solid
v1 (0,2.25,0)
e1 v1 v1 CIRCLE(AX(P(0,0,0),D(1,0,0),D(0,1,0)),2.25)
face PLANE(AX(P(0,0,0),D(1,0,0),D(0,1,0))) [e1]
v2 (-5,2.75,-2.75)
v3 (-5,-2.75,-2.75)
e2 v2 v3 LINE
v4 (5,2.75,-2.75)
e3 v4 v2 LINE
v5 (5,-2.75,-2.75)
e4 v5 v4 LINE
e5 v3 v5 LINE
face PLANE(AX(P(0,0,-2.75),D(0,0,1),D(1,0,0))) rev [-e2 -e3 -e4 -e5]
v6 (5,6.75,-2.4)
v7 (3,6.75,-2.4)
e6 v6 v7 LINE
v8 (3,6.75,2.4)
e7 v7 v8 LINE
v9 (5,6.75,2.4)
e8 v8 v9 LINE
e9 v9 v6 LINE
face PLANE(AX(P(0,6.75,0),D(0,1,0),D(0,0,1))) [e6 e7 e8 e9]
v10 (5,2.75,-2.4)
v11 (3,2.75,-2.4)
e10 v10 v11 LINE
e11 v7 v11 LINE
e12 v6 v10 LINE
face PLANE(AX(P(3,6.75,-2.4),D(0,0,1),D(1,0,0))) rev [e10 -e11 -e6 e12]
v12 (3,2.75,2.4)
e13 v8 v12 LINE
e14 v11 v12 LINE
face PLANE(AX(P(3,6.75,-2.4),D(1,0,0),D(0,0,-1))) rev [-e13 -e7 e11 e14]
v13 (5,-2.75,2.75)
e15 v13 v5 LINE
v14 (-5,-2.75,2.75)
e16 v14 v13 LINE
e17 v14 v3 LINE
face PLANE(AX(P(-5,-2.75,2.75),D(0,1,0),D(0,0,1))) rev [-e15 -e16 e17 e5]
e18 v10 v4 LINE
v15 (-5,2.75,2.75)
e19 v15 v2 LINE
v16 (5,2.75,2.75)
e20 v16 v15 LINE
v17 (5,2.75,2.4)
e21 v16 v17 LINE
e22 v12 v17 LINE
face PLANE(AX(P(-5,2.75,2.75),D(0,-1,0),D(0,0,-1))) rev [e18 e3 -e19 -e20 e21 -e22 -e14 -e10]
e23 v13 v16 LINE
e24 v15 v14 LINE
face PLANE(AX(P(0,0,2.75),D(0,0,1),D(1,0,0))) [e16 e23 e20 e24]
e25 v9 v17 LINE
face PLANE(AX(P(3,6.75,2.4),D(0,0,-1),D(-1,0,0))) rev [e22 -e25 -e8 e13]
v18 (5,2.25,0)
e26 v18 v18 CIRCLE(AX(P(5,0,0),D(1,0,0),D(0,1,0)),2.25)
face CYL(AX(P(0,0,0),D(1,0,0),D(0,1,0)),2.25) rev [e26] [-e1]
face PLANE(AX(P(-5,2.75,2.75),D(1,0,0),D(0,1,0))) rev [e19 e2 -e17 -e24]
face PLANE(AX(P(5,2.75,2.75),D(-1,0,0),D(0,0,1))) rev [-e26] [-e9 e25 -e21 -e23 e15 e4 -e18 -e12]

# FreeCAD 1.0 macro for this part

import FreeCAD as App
import Part
import Sketcher


def add_polygon(sketch, points):
    """Adds a closed chain of lines whose ends are joined by coincident constraints."""
    first, n = sketch.GeometryCount, len(points)
    for a, b in zip(points, points[1:] + points[:1]):
        sketch.addGeometry(Part.LineSegment(App.Vector(*a, 0), App.Vector(*b, 0)), False)
    for i in range(n):
        sketch.addConstraint(Sketcher.Constraint("Coincident", first + i, 2, first + (i + 1) % n, 1))

doc = App.newDocument("Part")
body = doc.addObject("PartDesign::Body", "Body")

# Sketch on XY plane
sketch1 = doc.addObject("Sketcher::SketchObject", "Sketch")
body.addObject(sketch1)
sketch1.AttachmentSupport = (doc.XY_Plane, [""])
sketch1.MapMode = "FlatFace"
add_polygon(sketch1, [(-5, 3), (-5, -3), (5, -3), (5, 3)])  # lines 0-3
sketch1.addConstraint([
    Sketcher.Constraint("Vertical", 0),
    Sketcher.Constraint("Horizontal", 1),
    Sketcher.Constraint("Vertical", 2),
    Sketcher.Constraint("Horizontal", 3),
    Sketcher.Constraint("Symmetric", 0, 2, 2, 2, -1, 1),
    Sketcher.Constraint("DistanceX", 1, 1, 1, 2, 10.0),
    Sketcher.Constraint("DistanceY", 0, 2, 0, 1, 5.5),
])
pad1 = doc.addObject("PartDesign::Pad", "Pad")
body.addObject(pad1)
pad1.Profile = sketch1
pad1.Length = 5.5
pad1.Midplane = True

# Sketch on YZ plane
sketch2 = doc.addObject("Sketcher::SketchObject", "Sketch001")
body.addObject(sketch2)
sketch2.AttachmentSupport = (doc.YZ_Plane, [""])
sketch2.MapMode = "FlatFace"
sketch2.AttachmentOffset = App.Placement(App.Vector(0, 0, 5), App.Rotation())
sketch2.addGeometry(Part.Circle(App.Vector(0, 0, 0), App.Vector(0, 0, 1), 2.2), False)
sketch2.addConstraint([
    Sketcher.Constraint("Coincident", 0, 3, -1, 1),
    Sketcher.Constraint("Diameter", 0, 4.5),
])
pocket1 = doc.addObject("PartDesign::Pocket", "Pocket")
body.addObject(pocket1)
pocket1.Profile = sketch2
pocket1.Length = 5

# Sketch on XZ plane
sketch3 = doc.addObject("Sketcher::SketchObject", "Sketch002")
body.addObject(sketch3)
sketch3.AttachmentSupport = (doc.XZ_Plane, [""])
sketch3.MapMode = "FlatFace"
sketch3.AttachmentOffset = App.Placement(App.Vector(0, 0, -2.75), App.Rotation())
add_polygon(sketch3, [(3, -2.4), (3, 2.4), (5, 2.4), (5, -2.4)])  # lines 0-3
sketch3.addConstraint([
    Sketcher.Constraint("Vertical", 0),
    Sketcher.Constraint("Horizontal", 1),
    Sketcher.Constraint("Vertical", 2),
    Sketcher.Constraint("Horizontal", 3),
    Sketcher.Constraint("DistanceX", 1, 1, 1, 2, 2.0),
    Sketcher.Constraint("DistanceY", 0, 1, 0, 2, 4.8),
    Sketcher.Constraint("DistanceX", -1, 1, 0, 2, 3.0),
    Sketcher.Constraint("DistanceY", -1, 1, 0, 2, 2.4),
])
pad2 = doc.addObject("PartDesign::Pad", "Pad001")
body.addObject(pad2)
pad2.Profile = sketch3
pad2.Length = 4
pad2.Reversed = True

doc.recompute()
